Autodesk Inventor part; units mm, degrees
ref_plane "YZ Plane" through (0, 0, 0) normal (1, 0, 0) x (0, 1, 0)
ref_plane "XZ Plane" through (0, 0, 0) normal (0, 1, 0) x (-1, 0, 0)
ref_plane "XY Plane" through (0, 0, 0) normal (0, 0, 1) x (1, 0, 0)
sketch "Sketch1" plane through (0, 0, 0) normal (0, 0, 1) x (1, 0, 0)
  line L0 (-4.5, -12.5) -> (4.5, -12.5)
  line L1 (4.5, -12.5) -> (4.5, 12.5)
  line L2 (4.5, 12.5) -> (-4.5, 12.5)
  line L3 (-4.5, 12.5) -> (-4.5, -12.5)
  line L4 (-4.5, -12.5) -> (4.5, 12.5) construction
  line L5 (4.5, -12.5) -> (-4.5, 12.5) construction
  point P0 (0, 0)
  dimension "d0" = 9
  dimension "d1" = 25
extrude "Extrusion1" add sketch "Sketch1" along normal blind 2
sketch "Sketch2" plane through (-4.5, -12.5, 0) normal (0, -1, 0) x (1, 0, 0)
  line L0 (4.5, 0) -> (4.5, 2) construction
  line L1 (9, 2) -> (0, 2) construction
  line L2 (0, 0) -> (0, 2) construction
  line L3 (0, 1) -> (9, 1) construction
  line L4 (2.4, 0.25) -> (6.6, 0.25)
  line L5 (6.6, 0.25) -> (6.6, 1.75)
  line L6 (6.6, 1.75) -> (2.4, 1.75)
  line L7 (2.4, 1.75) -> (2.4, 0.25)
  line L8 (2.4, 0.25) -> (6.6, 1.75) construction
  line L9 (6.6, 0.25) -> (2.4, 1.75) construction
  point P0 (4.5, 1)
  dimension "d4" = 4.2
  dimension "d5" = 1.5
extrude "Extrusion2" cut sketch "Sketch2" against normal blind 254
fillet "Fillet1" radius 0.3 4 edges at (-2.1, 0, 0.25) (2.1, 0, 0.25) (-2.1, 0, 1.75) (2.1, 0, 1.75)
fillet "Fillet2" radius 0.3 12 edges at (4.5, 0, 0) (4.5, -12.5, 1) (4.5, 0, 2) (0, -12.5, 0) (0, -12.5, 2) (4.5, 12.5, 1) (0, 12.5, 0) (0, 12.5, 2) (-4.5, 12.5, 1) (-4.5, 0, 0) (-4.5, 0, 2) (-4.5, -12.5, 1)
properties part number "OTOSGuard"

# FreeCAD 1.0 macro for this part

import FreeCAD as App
import Part
import Sketcher
from FreeCAD import Vector


def edges_at(feature, points):
    """Names of the edges that pass closest to the given points."""
    edges = feature.Shape.Edges
    near = lambda p: min(range(len(edges)), key=lambda i: edges[i].distToShape(Part.Vertex(*p))[0])
    return sorted({f"Edge{near(p) + 1}" for p in points})


def add_polygon(sketch, points):
    """Adds a closed chain of lines whose ends are joined by coincident constraints."""
    first, n = sketch.GeometryCount, len(points)
    for a, b in zip(points, points[1:] + points[:1]):
        sketch.addGeometry(Part.LineSegment(App.Vector(*a, 0), App.Vector(*b, 0)), False)
    for i in range(n):
        sketch.addConstraint(Sketcher.Constraint("Coincident", first + i, 2, first + (i + 1) % n, 1))

doc = App.newDocument("Part")
body = doc.addObject("PartDesign::Body", "Body")

# Sketch on XY plane
sketch1 = doc.addObject("Sketcher::SketchObject", "Sketch")
body.addObject(sketch1)
sketch1.AttachmentSupport = (doc.XY_Plane, [""])
sketch1.MapMode = "FlatFace"
add_polygon(sketch1, [(-4.5, 12.5), (-4.5, -12.5), (4.5, -12.5), (4.5, 12.5)])  # lines 0-3
sketch1.addConstraint([
    Sketcher.Constraint("Vertical", 0),
    Sketcher.Constraint("Horizontal", 1),
    Sketcher.Constraint("Vertical", 2),
    Sketcher.Constraint("Horizontal", 3),
    Sketcher.Constraint("Symmetric", 0, 2, 2, 2, -1, 1),
    Sketcher.Constraint("DistanceX", 1, 1, 1, 2, 9.0),
    Sketcher.Constraint("DistanceY", 0, 2, 0, 1, 25.0),
])
pad1 = doc.addObject("PartDesign::Pad", "Pad")
body.addObject(pad1)
pad1.Profile = sketch1
pad1.Length = 2

# Sketch on XZ plane
sketch2 = doc.addObject("Sketcher::SketchObject", "Sketch001")
body.addObject(sketch2)
sketch2.AttachmentSupport = (doc.XZ_Plane, [""])
sketch2.MapMode = "FlatFace"
sketch2.AttachmentOffset = App.Placement(Vector(0, 0, 12.5), App.Rotation())
add_polygon(sketch2, [(-2.1, 1.75), (-2.1, 0.25), (2.1, 0.25), (2.1, 1.75)])  # lines 0-3
sketch2.addConstraint([
    Sketcher.Constraint("Vertical", 0),
    Sketcher.Constraint("Horizontal", 1),
    Sketcher.Constraint("Vertical", 2),
    Sketcher.Constraint("Horizontal", 3),
    Sketcher.Constraint("DistanceX", 1, 1, 1, 2, 4.2),
    Sketcher.Constraint("DistanceY", 0, 2, 0, 1, 1.5),
    Sketcher.Constraint("DistanceX", 0, 2, -1, 1, 2.1),
    Sketcher.Constraint("DistanceY", -1, 1, 0, 2, 0.25),
])
pocket1 = doc.addObject("PartDesign::Pocket", "Pocket")
body.addObject(pocket1)
pocket1.Profile = sketch2
pocket1.Length = 254
doc.recompute()

fillet = doc.addObject("PartDesign::Fillet", "Fillet")
body.addObject(fillet)
fillet.Base = (pocket1, edges_at(pocket1, [
    (-2.1, 0, 0.25),
    (2.1, 0, 0.25),
    (-2.1, 0, 1.75),
    (2.1, 0, 1.75),
]))
fillet.Radius = 0.3
doc.recompute()

fillet2 = doc.addObject("PartDesign::Fillet", "Fillet001")
body.addObject(fillet2)
fillet2.Base = (fillet, edges_at(fillet, [
    (4.5, 0, 0),
    (4.5, -12.5, 1),
    (4.5, 0, 2),
    (0, -12.5, 0),
    (0, -12.5, 2),
    (4.5, 12.5, 1),
    (0, 12.5, 0),
    (0, 12.5, 2),
    (-4.5, 12.5, 1),
    (-4.5, 0, 0),
    (-4.5, 0, 2),
    (-4.5, -12.5, 1),
]))
fillet2.Radius = 0.3

doc.recompute()
